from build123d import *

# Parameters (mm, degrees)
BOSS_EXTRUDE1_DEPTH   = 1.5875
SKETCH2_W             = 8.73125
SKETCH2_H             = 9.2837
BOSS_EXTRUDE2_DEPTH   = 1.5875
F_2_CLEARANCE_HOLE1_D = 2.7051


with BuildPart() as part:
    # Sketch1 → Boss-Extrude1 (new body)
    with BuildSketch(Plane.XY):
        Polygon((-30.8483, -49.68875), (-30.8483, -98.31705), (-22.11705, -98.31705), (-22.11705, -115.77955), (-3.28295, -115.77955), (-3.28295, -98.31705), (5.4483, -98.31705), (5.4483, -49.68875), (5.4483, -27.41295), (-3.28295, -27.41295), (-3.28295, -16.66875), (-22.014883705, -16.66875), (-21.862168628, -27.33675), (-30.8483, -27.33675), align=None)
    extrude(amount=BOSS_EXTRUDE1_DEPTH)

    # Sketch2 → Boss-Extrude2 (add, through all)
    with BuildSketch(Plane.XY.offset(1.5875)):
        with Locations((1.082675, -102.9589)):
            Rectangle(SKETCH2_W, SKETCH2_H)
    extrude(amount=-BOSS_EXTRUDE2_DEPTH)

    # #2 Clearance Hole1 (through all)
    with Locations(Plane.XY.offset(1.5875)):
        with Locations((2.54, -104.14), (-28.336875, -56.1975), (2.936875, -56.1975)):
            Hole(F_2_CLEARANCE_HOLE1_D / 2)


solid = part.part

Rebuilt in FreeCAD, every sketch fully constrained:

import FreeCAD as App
import Part
import Sketcher
from FreeCAD import Vector
Q = App.Units.Quantity

doc = App.newDocument("Part")
params = doc.addObject("Spreadsheet::Sheet", "Params")
for row, (alias, value) in enumerate([
    ("sketch1_width", "0.34375 in"),
    ("sketch1_height", "0.6875 in"),
    ("sketch1_height2", "0.423 in"),
    ("pad1_length", "0.0625 in"),
    ("sketch2_width", "0.34375 in"),
    ("pad2_length", "0.0625 in"),
    ("hole_diameter", "0.1065 in"),
], start=1):
    params.set(f"A{row}", alias)
    params.set(f"B{row}", "=" + value)
    params.setAlias(f"B{row}", alias)

body = doc.addObject("PartDesign::Body", "Body")

sketch1 = doc.addObject("Sketcher::SketchObject", "Sketch")
body.addObject(sketch1)
sketch1.AttachmentSupport = (doc.XY_Plane, [""])
sketch1.MapMode = "FlatFace"
sketch1.addGeometry([
    Part.LineSegment(Vector(-30.8483, -98.31705, 0), Vector(-22.11705, -98.31705, 0)),
    Part.LineSegment(Vector(-22.11705, -98.31705, 0), Vector(-22.11705, -115.77955, 0)),
    Part.LineSegment(Vector(-22.11705, -115.77955, 0), Vector(-3.28295, -115.77955, 0)),
    Part.LineSegment(Vector(-3.28295, -115.77955, 0), Vector(-3.28295, -98.31705, 0)),
    Part.LineSegment(Vector(-3.28295, -98.31705, 0), Vector(5.4483, -98.31705, 0)),
    Part.LineSegment(Vector(5.4483, -98.31705, 0), Vector(5.4483, -27.41295, 0)),
    Part.LineSegment(Vector(5.4483, -27.41295, 0), Vector(-3.28295, -27.41295, 0)),
    Part.LineSegment(Vector(-3.28295, -27.41295, 0), Vector(-3.28295, -16.66875, 0)),
    Part.LineSegment(Vector(-3.28295, -16.66875, 0), Vector(-22.014884, -16.66875, 0)),
    Part.LineSegment(Vector(-22.014884, -16.66875, 0), Vector(-21.862169, -27.33675, 0)),
    Part.LineSegment(Vector(-21.862169, -27.33675, 0), Vector(-30.8483, -27.33675, 0)),
    Part.LineSegment(Vector(-30.8483, -27.33675, 0), Vector(-30.8483, -98.31705, 0)),
], False)
sketch1.addConstraint([
    Sketcher.Constraint("Coincident", 0, 2, 1, 1),
    Sketcher.Constraint("Coincident", 1, 2, 2, 1),
    Sketcher.Constraint("Coincident", 2, 2, 3, 1),
    Sketcher.Constraint("Coincident", 3, 2, 4, 1),
    Sketcher.Constraint("Coincident", 4, 2, 5, 1),
    Sketcher.Constraint("Coincident", 5, 2, 6, 1),
    Sketcher.Constraint("Coincident", 6, 2, 7, 1),
    Sketcher.Constraint("Coincident", 7, 2, 8, 1),
    Sketcher.Constraint("Coincident", 8, 2, 9, 1),
    Sketcher.Constraint("Coincident", 9, 2, 10, 1),
    Sketcher.Constraint("Coincident", 10, 2, 11, 1),
    Sketcher.Constraint("Coincident", 11, 2, 0, 1),
    Sketcher.Constraint("Horizontal", 0),
    Sketcher.Constraint("Vertical", 1),
    Sketcher.Constraint("Horizontal", 2),
    Sketcher.Constraint("Vertical", 3),
    Sketcher.Constraint("Horizontal", 4),
    Sketcher.Constraint("Vertical", 5),
    Sketcher.Constraint("Horizontal", 6),
    Sketcher.Constraint("Vertical", 7),
    Sketcher.Constraint("Horizontal", 8),
    Sketcher.Constraint("Horizontal", 10),
    Sketcher.Constraint("Vertical", 11),
    Sketcher.Constraint("Horizontal", 0, 2, 3, 2),
    Sketcher.Constraint("Vertical", 3, 2, 6, 2),
    Sketcher.Constraint("Equal", 0, 4),
    Sketcher.Constraint("DistanceX", 0, 1, 0, 2, Q("0.34375 in")),
    Sketcher.Constraint("DistanceY", 1, 2, 1, 1, Q("0.6875 in")),
    Sketcher.Constraint("DistanceY", 7, 1, 7, 2, Q("0.423 in")),
    Sketcher.Constraint("DistanceY", 9, 2, 8, 2, Q("0.42 in")),
    Sketcher.Constraint("DistanceX", 2, 1, 2, 2, Q("0.7415 in")),
    Sketcher.Constraint("DistanceY", 5, 1, 5, 2, Q("2.7915 in")),
    Sketcher.Constraint("DistanceY", 7, 2, -1, 1, Q("0.65625 in")),
    Sketcher.Constraint("DistanceX", -1, 1, 4, 2, Q("0.2145 in")),
    Sketcher.Constraint("DistanceX", 10, 2, 10, 1, Q("8.986131 mm")),
    Sketcher.Constraint("DistanceX", 8, 2, 8, 1, Q("18.731934 mm")),
])
sketch1.setExpression("Constraints[26]", "Params.sketch1_width")
sketch1.setExpression("Constraints[27]", "Params.sketch1_height")
sketch1.setExpression("Constraints[28]", "Params.sketch1_height2")
pad1 = doc.addObject("PartDesign::Pad", "Pad")
body.addObject(pad1)
pad1.Profile = sketch1
pad1.setExpression("Length", "Params.pad1_length")

sketch2 = doc.addObject("Sketcher::SketchObject", "Sketch001")
body.addObject(sketch2)
sketch2.AttachmentSupport = (doc.XY_Plane, [""])
sketch2.MapMode = "FlatFace"
sketch2.AttachmentOffset = App.Placement(Vector(0, 0, 0.0625 * 25.4), App.Rotation())
sketch2.addGeometry([
    Part.LineSegment(Vector(-3.28295, -98.31705, 0), Vector(-3.28295, -107.60075, 0)),
    Part.LineSegment(Vector(-3.28295, -107.60075, 0), Vector(5.4483, -107.60075, 0)),
    Part.LineSegment(Vector(5.4483, -107.60075, 0), Vector(5.4483, -98.31705, 0)),
    Part.LineSegment(Vector(5.4483, -98.31705, 0), Vector(-3.28295, -98.31705, 0)),
], False)
sketch2.addConstraint([
    Sketcher.Constraint("Coincident", 0, 2, 1, 1),
    Sketcher.Constraint("Coincident", 1, 2, 2, 1),
    Sketcher.Constraint("Coincident", 2, 2, 3, 1),
    Sketcher.Constraint("Coincident", 3, 2, 0, 1),
    Sketcher.Constraint("Vertical", 0),
    Sketcher.Constraint("Horizontal", 1),
    Sketcher.Constraint("Vertical", 2),
    Sketcher.Constraint("Horizontal", 3),
    Sketcher.Constraint("DistanceX", 1, 1, 1, 2, Q("0.34375 in")),
    Sketcher.Constraint("DistanceY", 0, 2, 0, 1, Q("0.3655 in")),
    Sketcher.Constraint("DistanceX", -1, 1, 1, 2, Q("0.2145 in")),
    Sketcher.Constraint("DistanceY", 0, 2, -1, 1, Q("107.60075 mm")),
])
sketch2.setExpression("Constraints[8]", "Params.sketch2_width")
pad2 = doc.addObject("PartDesign::Pad", "Pad001")
body.addObject(pad2)
pad2.Profile = sketch2
pad2.setExpression("Length", "Params.pad2_length")
pad2.Reversed = True

sketch3 = doc.addObject("Sketcher::SketchObject", "Sketch002")
body.addObject(sketch3)
sketch3.AttachmentSupport = (doc.XY_Plane, [""])
sketch3.MapMode = "FlatFace"
sketch3.AttachmentOffset = App.Placement(Vector(0, 0, 0.0625 * 25.4), App.Rotation())
sketch3.addGeometry([
    Part.Circle(Vector(2.54, -104.14, 0), Vector(0, 0, 1), 1.35255),
    Part.Circle(Vector(-28.336875, -56.1975, 0), Vector(0, 0, 1), 1.35255),
    Part.Circle(Vector(2.936875, -56.1975, 0), Vector(0, 0, 1), 1.35255),
], False)
sketch3.addConstraint([
    Sketcher.Constraint("Equal", 0, 1),
    Sketcher.Constraint("Equal", 1, 2),
    Sketcher.Constraint("Horizontal", 1, 3, 2, 3),
    Sketcher.Constraint("Diameter", 0, Q("0.1065 in")),
    Sketcher.Constraint("DistanceX", -1, 1, 0, 3, Q("0.1 in")),
    Sketcher.Constraint("DistanceY", 0, 3, -1, 1, Q("4.1 in")),
    Sketcher.Constraint("DistanceX", 0, 3, 2, 3, Q("0.015625 in")),
    Sketcher.Constraint("DistanceY", 1, 3, -1, 1, Q("2.2125 in")),
    Sketcher.Constraint("DistanceX", 1, 3, 2, 3, Q("31.27375 mm")),
])
doc.recompute()
hole = doc.addObject("PartDesign::Hole", "Hole")
body.addObject(hole)
hole.Profile = sketch3
hole.ThreadType = "None"
hole.setExpression("Diameter", "Params.hole_diameter")
hole.DepthType = "ThroughAll"

doc.recompute()
